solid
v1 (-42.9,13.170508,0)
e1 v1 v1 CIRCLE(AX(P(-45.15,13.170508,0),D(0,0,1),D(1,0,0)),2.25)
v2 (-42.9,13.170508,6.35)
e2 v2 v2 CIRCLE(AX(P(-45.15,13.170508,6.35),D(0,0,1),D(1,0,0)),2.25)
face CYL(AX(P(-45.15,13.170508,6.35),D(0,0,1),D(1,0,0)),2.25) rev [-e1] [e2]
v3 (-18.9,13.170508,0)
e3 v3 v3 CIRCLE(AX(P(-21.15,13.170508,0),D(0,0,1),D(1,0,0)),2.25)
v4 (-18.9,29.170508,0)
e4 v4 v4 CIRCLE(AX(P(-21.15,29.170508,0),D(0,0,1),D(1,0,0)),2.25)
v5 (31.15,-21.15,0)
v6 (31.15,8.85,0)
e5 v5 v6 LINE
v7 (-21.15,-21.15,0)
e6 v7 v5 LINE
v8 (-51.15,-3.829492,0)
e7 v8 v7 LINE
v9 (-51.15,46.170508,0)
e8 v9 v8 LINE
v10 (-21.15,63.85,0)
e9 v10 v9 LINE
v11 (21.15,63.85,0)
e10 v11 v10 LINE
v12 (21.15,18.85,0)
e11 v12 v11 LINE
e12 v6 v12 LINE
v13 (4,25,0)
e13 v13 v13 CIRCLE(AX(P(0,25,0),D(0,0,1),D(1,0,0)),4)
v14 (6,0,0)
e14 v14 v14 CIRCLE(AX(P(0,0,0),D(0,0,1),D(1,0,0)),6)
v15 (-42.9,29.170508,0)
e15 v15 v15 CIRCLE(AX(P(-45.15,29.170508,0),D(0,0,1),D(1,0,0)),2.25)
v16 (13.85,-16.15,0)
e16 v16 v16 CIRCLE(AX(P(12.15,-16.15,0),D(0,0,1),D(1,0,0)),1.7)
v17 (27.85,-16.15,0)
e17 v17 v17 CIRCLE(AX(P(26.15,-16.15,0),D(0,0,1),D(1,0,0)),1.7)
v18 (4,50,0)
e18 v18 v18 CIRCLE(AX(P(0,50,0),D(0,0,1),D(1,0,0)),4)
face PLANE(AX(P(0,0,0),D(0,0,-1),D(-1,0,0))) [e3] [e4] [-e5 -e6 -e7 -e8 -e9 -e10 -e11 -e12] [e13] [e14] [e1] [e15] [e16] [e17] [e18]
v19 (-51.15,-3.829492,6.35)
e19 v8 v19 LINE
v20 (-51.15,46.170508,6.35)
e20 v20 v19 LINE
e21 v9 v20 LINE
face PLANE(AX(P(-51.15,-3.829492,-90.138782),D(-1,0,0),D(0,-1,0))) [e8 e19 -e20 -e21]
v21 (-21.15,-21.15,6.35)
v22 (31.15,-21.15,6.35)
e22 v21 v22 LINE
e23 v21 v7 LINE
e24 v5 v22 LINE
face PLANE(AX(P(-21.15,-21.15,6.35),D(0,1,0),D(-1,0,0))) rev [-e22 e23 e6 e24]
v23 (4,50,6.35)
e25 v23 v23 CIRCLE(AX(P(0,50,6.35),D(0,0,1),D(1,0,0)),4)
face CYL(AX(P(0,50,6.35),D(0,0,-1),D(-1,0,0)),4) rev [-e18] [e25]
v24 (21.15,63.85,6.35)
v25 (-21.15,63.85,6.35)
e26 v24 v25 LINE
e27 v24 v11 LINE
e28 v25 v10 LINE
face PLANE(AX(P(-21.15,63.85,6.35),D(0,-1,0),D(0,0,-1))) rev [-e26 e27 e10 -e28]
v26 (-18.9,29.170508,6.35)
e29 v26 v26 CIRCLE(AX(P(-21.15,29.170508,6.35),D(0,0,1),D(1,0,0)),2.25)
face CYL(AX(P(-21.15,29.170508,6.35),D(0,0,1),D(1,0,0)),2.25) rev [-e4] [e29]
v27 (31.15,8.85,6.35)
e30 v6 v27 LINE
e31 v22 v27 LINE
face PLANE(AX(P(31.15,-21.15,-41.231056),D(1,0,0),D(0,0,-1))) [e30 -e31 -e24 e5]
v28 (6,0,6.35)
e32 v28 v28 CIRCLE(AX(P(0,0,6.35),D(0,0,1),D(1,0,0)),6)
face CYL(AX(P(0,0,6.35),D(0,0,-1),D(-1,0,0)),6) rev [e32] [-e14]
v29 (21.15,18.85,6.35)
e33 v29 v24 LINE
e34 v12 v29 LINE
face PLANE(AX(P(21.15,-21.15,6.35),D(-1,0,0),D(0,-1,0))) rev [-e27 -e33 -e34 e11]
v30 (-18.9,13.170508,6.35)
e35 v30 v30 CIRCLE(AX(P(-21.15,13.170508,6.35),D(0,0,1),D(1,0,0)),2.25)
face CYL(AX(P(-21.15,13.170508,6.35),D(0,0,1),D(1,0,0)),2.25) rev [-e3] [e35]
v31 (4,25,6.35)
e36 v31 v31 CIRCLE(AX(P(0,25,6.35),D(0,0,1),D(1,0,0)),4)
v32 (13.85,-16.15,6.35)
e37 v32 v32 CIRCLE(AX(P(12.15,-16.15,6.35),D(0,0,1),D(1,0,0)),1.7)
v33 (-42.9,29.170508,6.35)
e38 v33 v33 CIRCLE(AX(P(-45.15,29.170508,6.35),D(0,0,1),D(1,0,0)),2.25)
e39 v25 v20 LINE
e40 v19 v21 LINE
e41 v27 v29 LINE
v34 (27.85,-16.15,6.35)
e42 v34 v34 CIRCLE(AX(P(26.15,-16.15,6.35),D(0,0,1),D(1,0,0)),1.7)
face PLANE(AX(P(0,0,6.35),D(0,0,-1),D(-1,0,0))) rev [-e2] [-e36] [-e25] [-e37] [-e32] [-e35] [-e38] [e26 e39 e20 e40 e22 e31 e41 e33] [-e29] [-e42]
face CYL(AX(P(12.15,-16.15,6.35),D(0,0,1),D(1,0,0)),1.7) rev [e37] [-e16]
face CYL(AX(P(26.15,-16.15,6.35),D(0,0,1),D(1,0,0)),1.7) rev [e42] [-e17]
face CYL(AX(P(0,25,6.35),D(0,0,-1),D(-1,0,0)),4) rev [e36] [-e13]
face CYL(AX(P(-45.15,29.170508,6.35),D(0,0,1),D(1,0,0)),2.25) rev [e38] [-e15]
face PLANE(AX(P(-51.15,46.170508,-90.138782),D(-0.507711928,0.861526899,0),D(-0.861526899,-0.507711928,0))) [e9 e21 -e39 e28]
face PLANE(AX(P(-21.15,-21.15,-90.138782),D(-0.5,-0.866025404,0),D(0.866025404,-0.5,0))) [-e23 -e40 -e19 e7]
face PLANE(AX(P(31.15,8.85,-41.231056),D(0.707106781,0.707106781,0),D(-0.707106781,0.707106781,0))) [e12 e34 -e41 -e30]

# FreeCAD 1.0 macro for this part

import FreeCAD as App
import Part
import Sketcher
Q = App.Units.Quantity

doc = App.newDocument("Part")
body = doc.addObject("PartDesign::Body", "Body")

sketch1 = body.newObject("Sketcher::SketchObject", "Sketch")
sketch1.AttachmentSupport = (doc.getObject("XY_Plane"), [""])
sketch1.MapMode = "FlatFace"
sketch1.addGeometry(Part.LineSegment(App.Vector(-21.1, 63.9, 0), App.Vector(-21.1, -21.1, 0)), False)
sketch1.addGeometry(Part.LineSegment(App.Vector(-21.1, -21.1, 0), App.Vector(21.1, -21.1, 0)), False)
sketch1.addGeometry(Part.LineSegment(App.Vector(21.1, -21.1, 0), App.Vector(21.1, 63.9, 0)), False)
sketch1.addGeometry(Part.LineSegment(App.Vector(21.1, 63.9, 0), App.Vector(-21.1, 63.9, 0)), False)
sketch1.addGeometry(Part.Circle(App.Vector(0, 0, 0), App.Vector(0, 0, 1), 6), False)
sketch1.addGeometry(Part.Circle(App.Vector(0, 25, 0), App.Vector(0, 0, 1), 4), False)
sketch1.addGeometry(Part.Circle(App.Vector(0, 50, 0), App.Vector(0, 0, 1), 4), False)
sketch1.addConstraint(Sketcher.Constraint("Coincident", 0, 2, 1, 1))
sketch1.addConstraint(Sketcher.Constraint("Coincident", 1, 2, 2, 1))
sketch1.addConstraint(Sketcher.Constraint("Coincident", 2, 2, 3, 1))
sketch1.addConstraint(Sketcher.Constraint("Coincident", 3, 2, 0, 1))
sketch1.addConstraint(Sketcher.Constraint("Vertical", 0))
sketch1.addConstraint(Sketcher.Constraint("Horizontal", 1))
sketch1.addConstraint(Sketcher.Constraint("Vertical", 2))
sketch1.addConstraint(Sketcher.Constraint("Horizontal", 3))
sketch1.addConstraint(Sketcher.Constraint("Coincident", 4, 3, -1, 1))
sketch1.addConstraint(Sketcher.Constraint("Equal", 5, 6))
sketch1.addConstraint(Sketcher.Constraint("PointOnObject", 5, 3, -2))
sketch1.addConstraint(Sketcher.Constraint("PointOnObject", 6, 3, -2))
sketch1.addConstraint(Sketcher.Constraint("Diameter", 4, 12.0))
sketch1.addConstraint(Sketcher.Constraint("Diameter", 5, 8.0))
sketch1.addConstraint(Sketcher.Constraint("DistanceY", 0, 2, 0, 1, 85.0))
sketch1.addConstraint(Sketcher.Constraint("DistanceX", 1, 1, 1, 2, 42.3))
sketch1.addConstraint(Sketcher.Constraint("DistanceY", -1, 1, 5, 3, 25.0))
sketch1.addConstraint(Sketcher.Constraint("DistanceY", -1, 1, 6, 3, 50.0))
sketch1.addConstraint(Sketcher.Constraint("DistanceX", 0, 2, -1, 1, 21.15))
sketch1.addConstraint(Sketcher.Constraint("DistanceY", 0, 2, -1, 1, 21.15))
pad1 = body.newObject("PartDesign::Pad", "Pad")
pad1.Profile = sketch1
pad1.Length = 6.35

sketch2 = body.newObject("Sketcher::SketchObject", "Sketch001")
sketch2.AttachmentSupport = (doc.getObject("XY_Plane"), [""])
sketch2.MapMode = "FlatFace"
sketch2.AttachmentOffset = App.Placement(App.Vector(0, 0, 6.35), App.Rotation())
sketch2.addGeometry(Part.LineSegment(App.Vector(-51, -4, 0), App.Vector(-21, -21, 0)), False)
sketch2.addGeometry(Part.LineSegment(App.Vector(-21, -21, 0), App.Vector(-21, 64, 0)), False)
sketch2.addGeometry(Part.LineSegment(App.Vector(-21, 64, 0), App.Vector(-51, 46, 0)), False)
sketch2.addGeometry(Part.LineSegment(App.Vector(-51, 46, 0), App.Vector(-51, -4, 0)), False)
sketch2.addConstraint(Sketcher.Constraint("Coincident", 0, 2, 1, 1))
sketch2.addConstraint(Sketcher.Constraint("Coincident", 1, 2, 2, 1))
sketch2.addConstraint(Sketcher.Constraint("Coincident", 2, 2, 3, 1))
sketch2.addConstraint(Sketcher.Constraint("Coincident", 3, 2, 0, 1))
sketch2.addConstraint(Sketcher.Constraint("Vertical", 1))
sketch2.addConstraint(Sketcher.Constraint("Vertical", 3))
sketch2.addConstraint(Sketcher.Constraint("DistanceY", 1, 1, 1, 2, 85.0))
sketch2.addConstraint(Sketcher.Constraint("DistanceY", 3, 2, 3, 1, 50.0))
sketch2.addConstraint(Sketcher.Constraint("Angle", 0, Q("-30 deg")))
sketch2.addConstraint(Sketcher.Constraint("DistanceX", 2, 2, 1, 2, 30.0))
sketch2.addConstraint(Sketcher.Constraint("DistanceX", 0, 2, -1, 1, 21.15))
sketch2.addConstraint(Sketcher.Constraint("DistanceY", 0, 2, -1, 1, 21.15))
pad2 = body.newObject("PartDesign::Pad", "Pad001")
pad2.Profile = sketch2
pad2.Length = 6.35
pad2.Reversed = True

sketch3 = body.newObject("Sketcher::SketchObject", "Sketch002")
sketch3.AttachmentSupport = (doc.getObject("XY_Plane"), [""])
sketch3.MapMode = "FlatFace"
sketch3.AttachmentOffset = App.Placement(App.Vector(0, 0, 6.35), App.Rotation())
sketch3.addGeometry(Part.Circle(App.Vector(-21.1, 13.2, 0), App.Vector(0, 0, 1), 2.2), False)
sketch3.addGeometry(Part.Circle(App.Vector(-21.1, 29.2, 0), App.Vector(0, 0, 1), 2.2), False)
sketch3.addGeometry(Part.Circle(App.Vector(-45.1, 13.2, 0), App.Vector(0, 0, 1), 2.2), False)
sketch3.addGeometry(Part.Circle(App.Vector(-45.1, 29.2, 0), App.Vector(0, 0, 1), 2.2), False)
sketch3.addConstraint(Sketcher.Constraint("Equal", 0, 1))
sketch3.addConstraint(Sketcher.Constraint("Equal", 1, 2))
sketch3.addConstraint(Sketcher.Constraint("Equal", 2, 3))
sketch3.addConstraint(Sketcher.Constraint("Horizontal", 0, 3, 2, 3))
sketch3.addConstraint(Sketcher.Constraint("Horizontal", 1, 3, 3, 3))
sketch3.addConstraint(Sketcher.Constraint("Vertical", 0, 3, 1, 3))
sketch3.addConstraint(Sketcher.Constraint("Vertical", 2, 3, 3, 3))
sketch3.addConstraint(Sketcher.Constraint("Diameter", 0, 4.5))
sketch3.addConstraint(Sketcher.Constraint("DistanceY", 0, 3, 1, 3, 16.0))
sketch3.addConstraint(Sketcher.Constraint("DistanceX", 2, 3, 0, 3, 24.0))
sketch3.addConstraint(Sketcher.Constraint("DistanceX", 0, 3, -1, 1, 21.15))
sketch3.addConstraint(Sketcher.Constraint("DistanceY", -1, 1, 0, 3, 13.170508))
doc.recompute()
hole = body.newObject("PartDesign::Hole", "Hole")
hole.Profile = sketch3
hole.ThreadType = "None"
hole.Diameter = 4.5
hole.DepthType = "ThroughAll"

sketch4 = body.newObject("Sketcher::SketchObject", "Sketch003")
sketch4.AttachmentSupport = (doc.getObject("XY_Plane"), [""])
sketch4.MapMode = "FlatFace"
sketch4.AttachmentOffset = App.Placement(App.Vector(0, 0, 6.35), App.Rotation())
sketch4.addGeometry(Part.LineSegment(App.Vector(21, -21, 0), App.Vector(31, -21, 0)), False)
sketch4.addGeometry(Part.LineSegment(App.Vector(31, -21, 0), App.Vector(31, 9, 0)), False)
sketch4.addGeometry(Part.LineSegment(App.Vector(31, 9, 0), App.Vector(21, 19, 0)), False)
sketch4.addGeometry(Part.LineSegment(App.Vector(21, 19, 0), App.Vector(21, -21, 0)), False)
sketch4.addConstraint(Sketcher.Constraint("Coincident", 0, 2, 1, 1))
sketch4.addConstraint(Sketcher.Constraint("Coincident", 1, 2, 2, 1))
sketch4.addConstraint(Sketcher.Constraint("Coincident", 2, 2, 3, 1))
sketch4.addConstraint(Sketcher.Constraint("Coincident", 3, 2, 0, 1))
sketch4.addConstraint(Sketcher.Constraint("Horizontal", 0))
sketch4.addConstraint(Sketcher.Constraint("Vertical", 1))
sketch4.addConstraint(Sketcher.Constraint("Vertical", 3))
sketch4.addConstraint(Sketcher.Constraint("DistanceX", 0, 1, 0, 2, 10.0))
sketch4.addConstraint(Sketcher.Constraint("DistanceY", 1, 1, 1, 2, 30.0))
sketch4.addConstraint(Sketcher.Constraint("DistanceY", 3, 2, 3, 1, 40.0))
sketch4.addConstraint(Sketcher.Constraint("DistanceX", -1, 1, 0, 2, 31.15))
sketch4.addConstraint(Sketcher.Constraint("DistanceY", 0, 2, -1, 1, 21.15))
pad3 = body.newObject("PartDesign::Pad", "Pad002")
pad3.Profile = sketch4
pad3.Length = 6.35
pad3.Reversed = True

sketch5 = body.newObject("Sketcher::SketchObject", "Sketch004")
sketch5.AttachmentSupport = (doc.getObject("XY_Plane"), [""])
sketch5.MapMode = "FlatFace"
sketch5.AttachmentOffset = App.Placement(App.Vector(0, 0, 6.35), App.Rotation())
sketch5.addGeometry(Part.Circle(App.Vector(12.2, -16.1, 0), App.Vector(0, 0, 1), 1.7), False)
sketch5.addGeometry(Part.Circle(App.Vector(26.1, -16.1, 0), App.Vector(0, 0, 1), 1.7), False)
sketch5.addConstraint(Sketcher.Constraint("Equal", 0, 1))
sketch5.addConstraint(Sketcher.Constraint("Horizontal", 0, 3, 1, 3))
sketch5.addConstraint(Sketcher.Constraint("Diameter", 0, 3.4))
sketch5.addConstraint(Sketcher.Constraint("DistanceX", 0, 3, 1, 3, 14.0))
sketch5.addConstraint(Sketcher.Constraint("DistanceX", -1, 1, 0, 3, 12.15))
sketch5.addConstraint(Sketcher.Constraint("DistanceY", 0, 3, -1, 1, 16.15))
doc.recompute()
hole2 = body.newObject("PartDesign::Hole", "Hole001")
hole2.Profile = sketch5
hole2.ThreadType = "None"
hole2.Diameter = 3.4
hole2.DepthType = "ThroughAll"

doc.recompute()
